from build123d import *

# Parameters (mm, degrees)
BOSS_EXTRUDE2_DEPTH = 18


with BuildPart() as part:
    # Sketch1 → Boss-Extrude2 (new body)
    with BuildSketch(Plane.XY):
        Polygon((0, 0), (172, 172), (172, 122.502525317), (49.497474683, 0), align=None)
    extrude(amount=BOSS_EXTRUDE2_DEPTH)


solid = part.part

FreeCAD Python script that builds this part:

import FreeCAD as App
import Part
import Sketcher

V = App.Vector
Q = App.Units.Quantity


def add_polygon(sketch, points):
    """Adds a closed chain of lines whose ends are joined by coincident constraints."""
    first, n = sketch.GeometryCount, len(points)
    for a, b in zip(points, points[1:] + points[:1]):
        sketch.addGeometry(Part.LineSegment(App.Vector(*a, 0), App.Vector(*b, 0)), False)
    for i in range(n):
        sketch.addConstraint(Sketcher.Constraint("Coincident", first + i, 2, first + (i + 1) % n, 1))

doc = App.newDocument("Part")
params = doc.addObject("Spreadsheet::Sheet", "Params")
for row, (alias, value) in enumerate([
    ("pad1_length", "18 mm"),
], start=1):
    params.set(f"A{row}", alias)
    params.set(f"B{row}", "=" + value)
    params.setAlias(f"B{row}", alias)

body = doc.addObject("PartDesign::Body", "Body")

sketch1 = doc.addObject("Sketcher::SketchObject", "Sketch")
body.addObject(sketch1)
sketch1.AttachmentSupport = (doc.XY_Plane, [""])
sketch1.MapMode = "FlatFace"
add_polygon(sketch1, [(172, 172), (0, 0), (49.497475, 0), (172, 122.502525)])
sketch1.addConstraint(Sketcher.Constraint("Horizontal", 1))
sketch1.addConstraint(Sketcher.Constraint("Vertical", 3))
sketch1.addConstraint(Sketcher.Constraint("Coincident", 0, 2, -1, 1))
sketch1.addConstraint(Sketcher.Constraint("Parallel", 0, 2))
sketch1.addConstraint(Sketcher.Constraint("Equal", 1, 3))
sketch1.addConstraint(Sketcher.Constraint("DistanceX", -1, 1, 2, 2, Q("172 mm")))
sketch1.addConstraint(Sketcher.Constraint("DistanceX", 1, 1, 1, 2, Q("49.497475 mm")))
pad1 = doc.addObject("PartDesign::Pad", "Pad")
body.addObject(pad1)
pad1.Profile = sketch1
pad1.setExpression("Length", "Params.pad1_length")

doc.recompute()
